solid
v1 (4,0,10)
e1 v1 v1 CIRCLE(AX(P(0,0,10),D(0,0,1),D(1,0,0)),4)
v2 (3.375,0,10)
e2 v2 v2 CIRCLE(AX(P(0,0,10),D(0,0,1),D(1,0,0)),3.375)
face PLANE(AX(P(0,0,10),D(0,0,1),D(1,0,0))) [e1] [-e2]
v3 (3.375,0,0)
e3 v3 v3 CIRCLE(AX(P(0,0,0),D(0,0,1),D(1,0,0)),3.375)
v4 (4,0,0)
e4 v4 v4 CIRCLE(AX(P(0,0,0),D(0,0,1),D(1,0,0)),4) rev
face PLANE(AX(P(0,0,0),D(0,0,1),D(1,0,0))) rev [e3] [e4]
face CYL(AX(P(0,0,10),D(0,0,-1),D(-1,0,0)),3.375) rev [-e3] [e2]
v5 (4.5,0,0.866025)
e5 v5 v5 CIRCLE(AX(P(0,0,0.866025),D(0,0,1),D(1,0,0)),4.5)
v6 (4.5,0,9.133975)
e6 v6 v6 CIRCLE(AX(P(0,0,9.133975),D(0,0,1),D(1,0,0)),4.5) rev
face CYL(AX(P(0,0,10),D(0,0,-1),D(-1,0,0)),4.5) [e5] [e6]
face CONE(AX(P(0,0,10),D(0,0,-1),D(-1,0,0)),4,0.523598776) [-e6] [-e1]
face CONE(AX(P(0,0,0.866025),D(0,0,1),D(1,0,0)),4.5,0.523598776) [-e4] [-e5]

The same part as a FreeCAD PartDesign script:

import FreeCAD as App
import Part
import Sketcher
from FreeCAD import Vector
Q = App.Units.Quantity


def edges_at(feature, points):
    """Names of the edges that pass closest to the given points."""
    edges = feature.Shape.Edges
    near = lambda p: min(range(len(edges)), key=lambda i: edges[i].distToShape(Part.Vertex(*p))[0])
    return sorted({f"Edge{near(p) + 1}" for p in points})

doc = App.newDocument("Part")
body = doc.addObject("PartDesign::Body", "Body")

# Sketch on XY plane
sketch1 = body.newObject("Sketcher::SketchObject", "Sketch")
sketch1.AttachmentSupport = (doc.getObject("XY_Plane"), [""])
sketch1.MapMode = "FlatFace"
sketch1.addGeometry(Part.Circle(Vector(0, 0, 0), Vector(0, 0, 1), 4.5), False)
sketch1.addGeometry(Part.Circle(Vector(0, 0, 0), Vector(0, 0, 1), 3.4), False)
sketch1.addConstraint(Sketcher.Constraint("Coincident", 0, 3, -1, 1))
sketch1.addConstraint(Sketcher.Constraint("Coincident", 1, 3, -1, 1))
sketch1.addConstraint(Sketcher.Constraint("Diameter", 0, Q("9 mm")))
sketch1.addConstraint(Sketcher.Constraint("Diameter", 1, Q("6.75 mm")))
pad1 = body.newObject("PartDesign::Pad", "Pad")
pad1.Profile = sketch1
pad1.Length = 10
doc.recompute()

chamfer = body.newObject("PartDesign::Chamfer", "Chamfer")
chamfer.Base = (pad1, edges_at(pad1, [(-4.5, 0, 0)]))
chamfer.ChamferType = "Two distances"
chamfer.Size = 0.5
chamfer.Size2 = 0.866025
chamfer.FlipDirection = True
doc.recompute()

chamfer2 = body.newObject("PartDesign::Chamfer", "Chamfer001")
chamfer2.Base = (chamfer, edges_at(chamfer, [(-4.5, 0, 10)]))
chamfer2.ChamferType = "Two distances"
chamfer2.Size = 0.5
chamfer2.Size2 = 0.866025
chamfer2.FlipDirection = True

doc.recompute()
